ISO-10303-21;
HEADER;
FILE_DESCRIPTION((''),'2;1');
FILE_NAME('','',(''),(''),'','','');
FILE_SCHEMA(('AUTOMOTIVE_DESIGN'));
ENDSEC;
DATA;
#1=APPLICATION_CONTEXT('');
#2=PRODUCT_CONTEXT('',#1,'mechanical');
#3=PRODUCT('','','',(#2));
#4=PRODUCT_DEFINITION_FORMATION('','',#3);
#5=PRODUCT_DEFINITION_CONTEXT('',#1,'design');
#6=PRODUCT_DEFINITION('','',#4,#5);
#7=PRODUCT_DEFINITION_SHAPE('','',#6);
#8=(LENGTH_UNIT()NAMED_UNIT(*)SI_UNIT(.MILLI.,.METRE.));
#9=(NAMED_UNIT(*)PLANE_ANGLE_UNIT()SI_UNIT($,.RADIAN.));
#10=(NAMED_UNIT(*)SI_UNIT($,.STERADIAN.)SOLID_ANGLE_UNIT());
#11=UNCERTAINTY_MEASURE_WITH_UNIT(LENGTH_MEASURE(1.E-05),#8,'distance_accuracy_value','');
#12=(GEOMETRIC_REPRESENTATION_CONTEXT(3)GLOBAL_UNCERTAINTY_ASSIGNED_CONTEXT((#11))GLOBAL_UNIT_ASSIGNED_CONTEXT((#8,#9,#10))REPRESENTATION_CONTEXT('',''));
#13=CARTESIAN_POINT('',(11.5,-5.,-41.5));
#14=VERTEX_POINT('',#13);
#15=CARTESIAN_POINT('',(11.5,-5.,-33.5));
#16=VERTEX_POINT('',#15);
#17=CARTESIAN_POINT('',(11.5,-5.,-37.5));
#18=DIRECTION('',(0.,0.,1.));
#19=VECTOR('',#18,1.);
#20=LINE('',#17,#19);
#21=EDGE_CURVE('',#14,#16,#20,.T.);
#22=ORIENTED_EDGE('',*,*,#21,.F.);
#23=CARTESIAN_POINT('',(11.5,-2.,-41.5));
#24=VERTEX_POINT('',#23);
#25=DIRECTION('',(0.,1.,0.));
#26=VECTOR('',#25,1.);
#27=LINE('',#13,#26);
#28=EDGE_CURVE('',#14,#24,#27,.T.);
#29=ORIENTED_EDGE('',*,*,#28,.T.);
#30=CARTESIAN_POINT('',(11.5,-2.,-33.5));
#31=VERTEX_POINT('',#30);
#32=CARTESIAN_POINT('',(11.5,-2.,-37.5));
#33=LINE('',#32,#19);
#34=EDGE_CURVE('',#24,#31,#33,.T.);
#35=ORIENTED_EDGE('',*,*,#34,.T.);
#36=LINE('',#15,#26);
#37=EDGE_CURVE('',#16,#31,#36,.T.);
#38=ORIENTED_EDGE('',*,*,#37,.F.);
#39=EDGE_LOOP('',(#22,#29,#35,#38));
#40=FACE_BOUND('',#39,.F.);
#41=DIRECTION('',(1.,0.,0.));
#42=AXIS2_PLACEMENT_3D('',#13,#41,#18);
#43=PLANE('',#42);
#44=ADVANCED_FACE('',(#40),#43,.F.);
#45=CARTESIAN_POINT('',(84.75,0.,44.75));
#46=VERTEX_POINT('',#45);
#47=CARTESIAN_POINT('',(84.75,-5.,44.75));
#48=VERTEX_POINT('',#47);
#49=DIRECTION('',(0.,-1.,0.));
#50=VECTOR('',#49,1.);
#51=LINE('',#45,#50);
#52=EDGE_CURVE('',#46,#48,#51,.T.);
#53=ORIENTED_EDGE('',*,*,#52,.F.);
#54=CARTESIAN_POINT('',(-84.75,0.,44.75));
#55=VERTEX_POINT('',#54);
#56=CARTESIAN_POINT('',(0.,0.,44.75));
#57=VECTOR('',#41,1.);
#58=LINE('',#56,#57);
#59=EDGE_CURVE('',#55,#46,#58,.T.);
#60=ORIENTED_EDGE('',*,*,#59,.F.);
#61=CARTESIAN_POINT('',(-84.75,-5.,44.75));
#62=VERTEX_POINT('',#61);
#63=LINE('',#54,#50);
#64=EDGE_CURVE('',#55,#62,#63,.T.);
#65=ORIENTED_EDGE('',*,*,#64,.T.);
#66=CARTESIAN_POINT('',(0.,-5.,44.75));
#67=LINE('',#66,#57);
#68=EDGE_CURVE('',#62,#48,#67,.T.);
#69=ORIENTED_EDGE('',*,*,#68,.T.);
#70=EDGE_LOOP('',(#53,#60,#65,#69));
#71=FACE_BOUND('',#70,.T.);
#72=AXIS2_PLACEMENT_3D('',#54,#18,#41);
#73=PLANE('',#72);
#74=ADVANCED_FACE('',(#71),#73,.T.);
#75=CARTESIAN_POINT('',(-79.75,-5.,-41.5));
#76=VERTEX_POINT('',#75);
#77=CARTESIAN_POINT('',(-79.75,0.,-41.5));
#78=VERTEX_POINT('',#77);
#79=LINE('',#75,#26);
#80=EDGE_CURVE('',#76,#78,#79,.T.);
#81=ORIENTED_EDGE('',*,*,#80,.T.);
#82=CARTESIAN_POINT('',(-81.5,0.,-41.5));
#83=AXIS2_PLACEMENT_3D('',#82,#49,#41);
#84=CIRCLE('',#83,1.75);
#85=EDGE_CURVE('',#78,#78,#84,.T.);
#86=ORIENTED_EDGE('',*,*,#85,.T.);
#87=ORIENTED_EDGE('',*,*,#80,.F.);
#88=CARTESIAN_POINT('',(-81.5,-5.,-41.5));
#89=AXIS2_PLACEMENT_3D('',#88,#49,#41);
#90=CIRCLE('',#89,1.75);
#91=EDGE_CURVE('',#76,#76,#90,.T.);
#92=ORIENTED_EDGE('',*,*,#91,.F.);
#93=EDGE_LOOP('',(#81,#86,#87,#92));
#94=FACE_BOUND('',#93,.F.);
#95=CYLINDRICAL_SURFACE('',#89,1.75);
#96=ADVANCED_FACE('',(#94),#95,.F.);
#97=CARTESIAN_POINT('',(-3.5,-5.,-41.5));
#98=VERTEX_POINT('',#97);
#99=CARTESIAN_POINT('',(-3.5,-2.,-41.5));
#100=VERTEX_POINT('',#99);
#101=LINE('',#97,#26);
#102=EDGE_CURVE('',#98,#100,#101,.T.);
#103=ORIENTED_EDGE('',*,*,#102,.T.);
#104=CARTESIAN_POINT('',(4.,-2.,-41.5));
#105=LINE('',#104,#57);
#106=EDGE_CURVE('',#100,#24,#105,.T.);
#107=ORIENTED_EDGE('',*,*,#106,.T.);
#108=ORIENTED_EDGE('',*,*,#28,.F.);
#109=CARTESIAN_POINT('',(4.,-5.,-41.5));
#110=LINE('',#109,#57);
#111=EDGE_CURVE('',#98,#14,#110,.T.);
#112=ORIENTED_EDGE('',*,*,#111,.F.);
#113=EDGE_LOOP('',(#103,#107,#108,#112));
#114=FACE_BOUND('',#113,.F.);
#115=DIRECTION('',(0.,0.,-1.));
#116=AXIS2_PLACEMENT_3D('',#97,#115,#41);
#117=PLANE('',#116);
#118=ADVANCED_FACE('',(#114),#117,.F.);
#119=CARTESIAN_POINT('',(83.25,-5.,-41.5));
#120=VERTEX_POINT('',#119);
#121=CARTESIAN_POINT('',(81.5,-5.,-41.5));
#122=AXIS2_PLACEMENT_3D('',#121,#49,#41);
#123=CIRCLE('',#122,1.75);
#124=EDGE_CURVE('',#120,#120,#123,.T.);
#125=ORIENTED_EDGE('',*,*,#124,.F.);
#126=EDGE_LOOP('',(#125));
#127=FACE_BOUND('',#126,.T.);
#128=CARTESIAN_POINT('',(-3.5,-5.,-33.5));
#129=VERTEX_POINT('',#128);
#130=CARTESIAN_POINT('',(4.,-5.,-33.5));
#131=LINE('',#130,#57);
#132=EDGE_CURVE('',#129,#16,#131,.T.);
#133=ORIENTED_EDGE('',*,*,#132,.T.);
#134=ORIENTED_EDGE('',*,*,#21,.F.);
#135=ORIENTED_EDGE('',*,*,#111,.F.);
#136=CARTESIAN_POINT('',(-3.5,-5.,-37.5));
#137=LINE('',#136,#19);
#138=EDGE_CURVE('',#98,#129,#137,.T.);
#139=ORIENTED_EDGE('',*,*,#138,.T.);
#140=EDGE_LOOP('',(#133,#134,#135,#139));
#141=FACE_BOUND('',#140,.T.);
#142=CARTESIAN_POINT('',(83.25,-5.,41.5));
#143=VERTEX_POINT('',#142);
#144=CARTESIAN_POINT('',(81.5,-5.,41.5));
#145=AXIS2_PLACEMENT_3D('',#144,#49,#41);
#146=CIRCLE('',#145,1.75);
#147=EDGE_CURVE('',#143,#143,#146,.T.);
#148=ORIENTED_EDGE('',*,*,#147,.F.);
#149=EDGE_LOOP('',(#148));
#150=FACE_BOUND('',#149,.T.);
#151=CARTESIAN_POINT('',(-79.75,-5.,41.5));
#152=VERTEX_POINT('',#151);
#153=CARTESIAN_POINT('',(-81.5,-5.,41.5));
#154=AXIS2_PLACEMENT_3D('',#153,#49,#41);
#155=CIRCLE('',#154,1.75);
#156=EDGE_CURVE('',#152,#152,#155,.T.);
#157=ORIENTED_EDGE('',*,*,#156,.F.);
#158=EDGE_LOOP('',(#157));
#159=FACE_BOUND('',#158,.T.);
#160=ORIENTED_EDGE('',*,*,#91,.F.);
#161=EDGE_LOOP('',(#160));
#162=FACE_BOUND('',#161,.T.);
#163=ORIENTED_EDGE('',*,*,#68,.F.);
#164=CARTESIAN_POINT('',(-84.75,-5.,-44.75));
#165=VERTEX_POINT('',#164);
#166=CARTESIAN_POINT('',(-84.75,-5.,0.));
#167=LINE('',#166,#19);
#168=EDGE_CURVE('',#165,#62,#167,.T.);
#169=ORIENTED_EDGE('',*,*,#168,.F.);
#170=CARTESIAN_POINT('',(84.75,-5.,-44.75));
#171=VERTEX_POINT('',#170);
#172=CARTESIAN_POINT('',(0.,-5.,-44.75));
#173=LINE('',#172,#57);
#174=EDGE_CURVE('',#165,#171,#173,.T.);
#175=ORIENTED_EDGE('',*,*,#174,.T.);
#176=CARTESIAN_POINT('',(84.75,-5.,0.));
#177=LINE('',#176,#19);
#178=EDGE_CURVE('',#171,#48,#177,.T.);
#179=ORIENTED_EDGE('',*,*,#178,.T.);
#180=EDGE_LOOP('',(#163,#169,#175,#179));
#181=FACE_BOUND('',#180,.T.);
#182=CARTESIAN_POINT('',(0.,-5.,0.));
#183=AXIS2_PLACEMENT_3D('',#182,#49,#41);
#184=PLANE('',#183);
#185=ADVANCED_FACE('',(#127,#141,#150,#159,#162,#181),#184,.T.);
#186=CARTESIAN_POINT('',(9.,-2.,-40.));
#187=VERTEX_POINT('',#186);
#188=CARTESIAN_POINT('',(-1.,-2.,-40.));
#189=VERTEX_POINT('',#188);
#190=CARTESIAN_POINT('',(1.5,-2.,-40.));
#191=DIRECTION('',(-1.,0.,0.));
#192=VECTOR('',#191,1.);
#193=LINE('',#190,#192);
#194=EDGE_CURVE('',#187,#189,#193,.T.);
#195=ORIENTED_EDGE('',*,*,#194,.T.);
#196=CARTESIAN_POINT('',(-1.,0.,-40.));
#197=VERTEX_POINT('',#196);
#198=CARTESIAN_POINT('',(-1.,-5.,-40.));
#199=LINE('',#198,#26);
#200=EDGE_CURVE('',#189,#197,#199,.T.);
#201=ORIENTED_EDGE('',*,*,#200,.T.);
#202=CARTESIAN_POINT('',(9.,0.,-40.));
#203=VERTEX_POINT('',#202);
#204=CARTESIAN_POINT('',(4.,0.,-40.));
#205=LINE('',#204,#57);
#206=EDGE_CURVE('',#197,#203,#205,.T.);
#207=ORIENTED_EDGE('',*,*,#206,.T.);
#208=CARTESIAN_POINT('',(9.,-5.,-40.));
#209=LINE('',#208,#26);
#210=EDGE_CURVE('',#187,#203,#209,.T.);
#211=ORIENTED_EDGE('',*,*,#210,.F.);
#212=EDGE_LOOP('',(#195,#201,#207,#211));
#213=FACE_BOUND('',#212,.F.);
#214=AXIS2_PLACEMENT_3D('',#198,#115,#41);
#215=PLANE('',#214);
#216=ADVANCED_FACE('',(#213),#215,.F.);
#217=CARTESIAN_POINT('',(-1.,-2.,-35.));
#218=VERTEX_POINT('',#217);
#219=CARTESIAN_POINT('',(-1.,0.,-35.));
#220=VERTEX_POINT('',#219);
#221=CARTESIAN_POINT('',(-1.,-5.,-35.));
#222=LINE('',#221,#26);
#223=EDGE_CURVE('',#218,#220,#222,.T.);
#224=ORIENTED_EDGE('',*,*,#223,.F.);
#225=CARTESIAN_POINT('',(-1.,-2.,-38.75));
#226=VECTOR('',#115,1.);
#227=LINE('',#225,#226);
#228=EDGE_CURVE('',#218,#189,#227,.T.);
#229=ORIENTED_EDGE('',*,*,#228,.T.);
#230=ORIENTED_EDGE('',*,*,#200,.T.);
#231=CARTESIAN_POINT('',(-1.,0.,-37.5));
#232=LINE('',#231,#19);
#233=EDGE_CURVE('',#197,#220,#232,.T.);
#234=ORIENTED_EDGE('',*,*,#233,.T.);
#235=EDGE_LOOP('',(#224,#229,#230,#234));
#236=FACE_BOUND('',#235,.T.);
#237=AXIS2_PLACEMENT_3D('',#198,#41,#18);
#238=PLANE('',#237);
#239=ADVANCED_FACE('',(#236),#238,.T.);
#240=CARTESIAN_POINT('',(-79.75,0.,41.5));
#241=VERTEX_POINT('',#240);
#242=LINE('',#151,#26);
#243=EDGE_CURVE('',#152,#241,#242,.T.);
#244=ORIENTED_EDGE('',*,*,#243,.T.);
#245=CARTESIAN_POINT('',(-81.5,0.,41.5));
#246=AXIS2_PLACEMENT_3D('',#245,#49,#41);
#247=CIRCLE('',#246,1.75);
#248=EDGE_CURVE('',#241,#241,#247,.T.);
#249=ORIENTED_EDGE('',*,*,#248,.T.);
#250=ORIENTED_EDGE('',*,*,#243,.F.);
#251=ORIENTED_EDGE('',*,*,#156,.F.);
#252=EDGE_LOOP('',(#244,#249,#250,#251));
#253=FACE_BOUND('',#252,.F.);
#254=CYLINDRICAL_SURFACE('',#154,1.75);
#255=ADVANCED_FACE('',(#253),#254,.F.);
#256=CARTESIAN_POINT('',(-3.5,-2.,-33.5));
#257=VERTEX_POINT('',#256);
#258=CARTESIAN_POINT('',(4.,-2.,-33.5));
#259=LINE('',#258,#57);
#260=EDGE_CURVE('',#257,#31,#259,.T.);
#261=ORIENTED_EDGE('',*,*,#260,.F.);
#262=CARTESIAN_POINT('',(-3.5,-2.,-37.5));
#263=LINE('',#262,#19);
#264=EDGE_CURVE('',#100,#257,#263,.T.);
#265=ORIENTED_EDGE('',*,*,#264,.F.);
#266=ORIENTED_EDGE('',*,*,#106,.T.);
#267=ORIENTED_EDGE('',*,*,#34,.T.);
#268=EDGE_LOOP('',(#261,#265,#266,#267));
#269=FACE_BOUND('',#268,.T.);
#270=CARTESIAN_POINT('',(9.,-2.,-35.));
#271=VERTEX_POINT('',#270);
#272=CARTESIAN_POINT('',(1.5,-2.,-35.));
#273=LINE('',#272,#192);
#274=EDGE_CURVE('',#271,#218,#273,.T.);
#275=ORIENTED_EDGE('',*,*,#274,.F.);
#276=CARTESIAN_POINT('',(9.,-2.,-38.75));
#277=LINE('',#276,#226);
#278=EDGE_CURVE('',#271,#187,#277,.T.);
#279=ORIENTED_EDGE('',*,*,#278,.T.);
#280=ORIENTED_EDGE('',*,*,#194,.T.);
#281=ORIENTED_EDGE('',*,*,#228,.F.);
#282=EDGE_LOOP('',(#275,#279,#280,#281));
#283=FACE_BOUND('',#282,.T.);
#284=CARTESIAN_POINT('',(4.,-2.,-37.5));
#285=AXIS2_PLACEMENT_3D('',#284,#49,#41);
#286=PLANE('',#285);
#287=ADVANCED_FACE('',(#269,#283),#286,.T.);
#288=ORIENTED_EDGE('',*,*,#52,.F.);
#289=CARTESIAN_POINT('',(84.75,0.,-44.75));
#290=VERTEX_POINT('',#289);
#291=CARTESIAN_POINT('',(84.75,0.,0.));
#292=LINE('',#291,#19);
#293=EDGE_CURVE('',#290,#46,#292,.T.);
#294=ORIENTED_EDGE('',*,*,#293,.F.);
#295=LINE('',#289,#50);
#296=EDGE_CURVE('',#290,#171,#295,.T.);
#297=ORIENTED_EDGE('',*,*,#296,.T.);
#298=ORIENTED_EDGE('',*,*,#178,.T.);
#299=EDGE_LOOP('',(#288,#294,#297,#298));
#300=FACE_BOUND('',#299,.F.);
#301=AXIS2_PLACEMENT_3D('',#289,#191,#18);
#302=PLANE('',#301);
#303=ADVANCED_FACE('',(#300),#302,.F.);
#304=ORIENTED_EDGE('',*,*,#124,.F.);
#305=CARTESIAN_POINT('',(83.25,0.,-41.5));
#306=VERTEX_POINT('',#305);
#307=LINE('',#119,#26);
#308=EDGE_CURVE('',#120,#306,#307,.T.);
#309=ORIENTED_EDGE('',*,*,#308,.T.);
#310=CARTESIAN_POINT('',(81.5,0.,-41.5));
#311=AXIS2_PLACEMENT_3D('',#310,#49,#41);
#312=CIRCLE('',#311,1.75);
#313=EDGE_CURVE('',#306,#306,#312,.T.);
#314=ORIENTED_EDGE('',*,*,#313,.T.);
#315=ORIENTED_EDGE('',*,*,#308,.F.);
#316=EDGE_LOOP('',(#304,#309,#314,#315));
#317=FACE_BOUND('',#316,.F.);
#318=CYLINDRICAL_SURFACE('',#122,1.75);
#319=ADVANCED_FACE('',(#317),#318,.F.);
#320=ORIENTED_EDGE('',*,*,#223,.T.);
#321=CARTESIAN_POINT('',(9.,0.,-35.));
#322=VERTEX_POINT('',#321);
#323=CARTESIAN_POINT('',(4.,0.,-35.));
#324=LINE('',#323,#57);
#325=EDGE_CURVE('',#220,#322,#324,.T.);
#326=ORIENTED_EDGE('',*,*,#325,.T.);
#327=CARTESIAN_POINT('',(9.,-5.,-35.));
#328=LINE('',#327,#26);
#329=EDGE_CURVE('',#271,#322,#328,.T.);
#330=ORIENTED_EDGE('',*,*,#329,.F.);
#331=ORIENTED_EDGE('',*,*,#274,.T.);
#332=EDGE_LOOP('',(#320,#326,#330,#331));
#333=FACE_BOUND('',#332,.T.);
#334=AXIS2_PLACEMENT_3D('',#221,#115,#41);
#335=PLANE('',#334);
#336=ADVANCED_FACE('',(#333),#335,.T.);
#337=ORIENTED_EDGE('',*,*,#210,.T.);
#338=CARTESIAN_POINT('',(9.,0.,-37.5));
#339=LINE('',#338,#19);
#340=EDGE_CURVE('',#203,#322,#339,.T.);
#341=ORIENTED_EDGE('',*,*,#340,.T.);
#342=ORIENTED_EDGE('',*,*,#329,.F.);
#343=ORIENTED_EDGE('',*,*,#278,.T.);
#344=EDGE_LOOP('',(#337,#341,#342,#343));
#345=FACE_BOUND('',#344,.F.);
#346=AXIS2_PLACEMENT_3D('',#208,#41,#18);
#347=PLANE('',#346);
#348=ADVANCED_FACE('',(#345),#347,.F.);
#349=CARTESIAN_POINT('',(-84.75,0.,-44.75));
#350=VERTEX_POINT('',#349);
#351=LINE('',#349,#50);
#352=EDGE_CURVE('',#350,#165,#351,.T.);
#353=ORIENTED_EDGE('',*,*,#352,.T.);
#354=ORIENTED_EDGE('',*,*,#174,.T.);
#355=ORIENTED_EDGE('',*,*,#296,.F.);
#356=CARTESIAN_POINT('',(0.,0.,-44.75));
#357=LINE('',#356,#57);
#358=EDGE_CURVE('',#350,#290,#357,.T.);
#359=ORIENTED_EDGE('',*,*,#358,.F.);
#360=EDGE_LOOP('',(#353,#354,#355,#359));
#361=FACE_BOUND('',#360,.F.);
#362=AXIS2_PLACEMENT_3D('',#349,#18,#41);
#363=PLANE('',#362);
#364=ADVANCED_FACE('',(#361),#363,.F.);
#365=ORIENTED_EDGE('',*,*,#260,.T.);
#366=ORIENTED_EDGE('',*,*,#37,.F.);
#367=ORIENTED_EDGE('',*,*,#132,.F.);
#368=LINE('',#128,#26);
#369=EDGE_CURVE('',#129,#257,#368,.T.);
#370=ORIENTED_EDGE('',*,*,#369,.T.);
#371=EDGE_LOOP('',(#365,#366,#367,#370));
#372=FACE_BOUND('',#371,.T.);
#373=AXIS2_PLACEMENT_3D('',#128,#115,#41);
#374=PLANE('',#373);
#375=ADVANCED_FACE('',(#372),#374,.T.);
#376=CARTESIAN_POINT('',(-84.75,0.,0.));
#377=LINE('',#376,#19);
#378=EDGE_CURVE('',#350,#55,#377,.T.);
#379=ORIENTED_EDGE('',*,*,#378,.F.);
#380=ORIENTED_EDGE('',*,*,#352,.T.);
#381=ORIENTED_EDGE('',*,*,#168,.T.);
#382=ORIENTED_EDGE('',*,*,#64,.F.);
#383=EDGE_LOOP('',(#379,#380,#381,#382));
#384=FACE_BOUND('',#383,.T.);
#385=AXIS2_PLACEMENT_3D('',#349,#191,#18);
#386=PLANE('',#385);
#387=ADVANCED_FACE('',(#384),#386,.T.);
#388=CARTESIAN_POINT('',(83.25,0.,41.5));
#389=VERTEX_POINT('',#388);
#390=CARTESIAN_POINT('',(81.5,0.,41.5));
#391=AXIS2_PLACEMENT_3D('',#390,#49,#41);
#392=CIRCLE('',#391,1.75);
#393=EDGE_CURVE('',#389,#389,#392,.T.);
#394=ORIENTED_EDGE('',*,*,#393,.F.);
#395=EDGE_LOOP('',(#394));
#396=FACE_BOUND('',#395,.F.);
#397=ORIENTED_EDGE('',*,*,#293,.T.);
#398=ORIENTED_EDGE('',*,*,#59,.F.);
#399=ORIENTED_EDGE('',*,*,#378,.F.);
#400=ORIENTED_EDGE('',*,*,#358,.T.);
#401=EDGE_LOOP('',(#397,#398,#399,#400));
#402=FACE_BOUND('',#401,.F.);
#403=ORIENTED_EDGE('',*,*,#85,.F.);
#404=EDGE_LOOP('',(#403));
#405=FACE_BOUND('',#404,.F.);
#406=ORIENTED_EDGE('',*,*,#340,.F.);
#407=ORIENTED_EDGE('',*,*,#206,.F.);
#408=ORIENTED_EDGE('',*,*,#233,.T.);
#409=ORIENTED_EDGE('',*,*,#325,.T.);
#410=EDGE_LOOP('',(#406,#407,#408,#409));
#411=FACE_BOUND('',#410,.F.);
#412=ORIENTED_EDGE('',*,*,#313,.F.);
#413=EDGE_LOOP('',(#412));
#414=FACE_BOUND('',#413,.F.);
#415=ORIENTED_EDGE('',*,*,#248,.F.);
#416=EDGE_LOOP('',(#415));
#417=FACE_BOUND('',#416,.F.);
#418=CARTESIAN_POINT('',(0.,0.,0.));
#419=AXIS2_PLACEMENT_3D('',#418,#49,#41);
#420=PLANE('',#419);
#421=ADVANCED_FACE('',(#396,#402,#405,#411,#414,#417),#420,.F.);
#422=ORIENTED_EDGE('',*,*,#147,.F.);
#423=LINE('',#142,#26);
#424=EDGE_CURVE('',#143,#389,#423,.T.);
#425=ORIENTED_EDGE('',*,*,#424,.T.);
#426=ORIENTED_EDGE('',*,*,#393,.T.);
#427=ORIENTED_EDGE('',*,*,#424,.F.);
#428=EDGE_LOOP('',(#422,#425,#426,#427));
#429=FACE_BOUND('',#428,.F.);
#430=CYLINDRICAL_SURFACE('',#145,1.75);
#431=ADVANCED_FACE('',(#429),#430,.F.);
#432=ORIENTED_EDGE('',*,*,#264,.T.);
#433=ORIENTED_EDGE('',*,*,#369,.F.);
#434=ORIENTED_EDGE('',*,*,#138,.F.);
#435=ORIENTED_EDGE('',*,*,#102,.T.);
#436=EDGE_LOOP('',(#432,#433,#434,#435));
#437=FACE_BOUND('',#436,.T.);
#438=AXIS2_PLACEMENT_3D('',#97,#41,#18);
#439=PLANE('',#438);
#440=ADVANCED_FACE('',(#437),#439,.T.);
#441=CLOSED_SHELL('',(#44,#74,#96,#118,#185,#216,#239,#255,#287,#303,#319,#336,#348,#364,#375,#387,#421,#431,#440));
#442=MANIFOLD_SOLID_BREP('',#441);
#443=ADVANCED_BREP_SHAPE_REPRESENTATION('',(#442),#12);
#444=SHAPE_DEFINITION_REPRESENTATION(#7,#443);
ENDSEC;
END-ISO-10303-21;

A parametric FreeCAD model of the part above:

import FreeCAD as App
import Part
import Sketcher

doc = App.newDocument("Part")
body = doc.addObject("PartDesign::Body", "Body")

sketch1 = body.newObject("Sketcher::SketchObject", "Sketch")
sketch1.AttachmentSupport = (doc.getObject("XZ_Plane"), [""])
sketch1.MapMode = "FlatFace"
sketch1.addGeometry([
    Part.LineSegment(App.Vector(-84.75, 44.75, 0), App.Vector(-84.75, -44.75, 0)),
    Part.LineSegment(App.Vector(-84.75, -44.75, 0), App.Vector(84.75, -44.75, 0)),
    Part.LineSegment(App.Vector(84.75, -44.75, 0), App.Vector(84.75, 44.75, 0)),
    Part.LineSegment(App.Vector(84.75, 44.75, 0), App.Vector(-84.75, 44.75, 0)),
], False)
sketch1.addConstraint([
    Sketcher.Constraint("Coincident", 0, 2, 1, 1),
    Sketcher.Constraint("Coincident", 1, 2, 2, 1),
    Sketcher.Constraint("Coincident", 2, 2, 3, 1),
    Sketcher.Constraint("Coincident", 3, 2, 0, 1),
    Sketcher.Constraint("Vertical", 0),
    Sketcher.Constraint("Horizontal", 1),
    Sketcher.Constraint("Vertical", 2),
    Sketcher.Constraint("Horizontal", 3),
    Sketcher.Constraint("Symmetric", 0, 2, 2, 2, -1, 1),
    Sketcher.Constraint("DistanceX", 1, 1, 1, 2, 169.5),
    Sketcher.Constraint("DistanceY", 0, 2, 0, 1, 89.5),
])
pad1 = body.newObject("PartDesign::Pad", "Pad")
pad1.Profile = sketch1
pad1.Length = 5

sketch2 = body.newObject("Sketcher::SketchObject", "Sketch001")
sketch2.AttachmentSupport = (doc.getObject("XZ_Plane"), [""])
sketch2.MapMode = "FlatFace"
sketch2.AttachmentOffset = App.Placement(App.Vector(0, 0, 5), App.Rotation())
sketch2.addGeometry([
    Part.Circle(App.Vector(-81.5, 41.5, 0), App.Vector(0, 0, 1), 1.75),
    Part.Circle(App.Vector(81.5, 41.5, 0), App.Vector(0, 0, 1), 1.75),
    Part.Circle(App.Vector(-81.5, -41.5, 0), App.Vector(0, 0, 1), 1.75),
    Part.Circle(App.Vector(81.5, -41.5, 0), App.Vector(0, 0, 1), 1.75),
    Part.LineSegment(App.Vector(-1, -35, 0), App.Vector(-1, -40, 0)),
    Part.LineSegment(App.Vector(-1, -40, 0), App.Vector(9, -40, 0)),
    Part.LineSegment(App.Vector(9, -40, 0), App.Vector(9, -35, 0)),
    Part.LineSegment(App.Vector(9, -35, 0), App.Vector(-1, -35, 0)),
], False)
sketch2.addConstraint([
    Sketcher.Constraint("Coincident", 4, 2, 5, 1),
    Sketcher.Constraint("Coincident", 5, 2, 6, 1),
    Sketcher.Constraint("Coincident", 6, 2, 7, 1),
    Sketcher.Constraint("Coincident", 7, 2, 4, 1),
    Sketcher.Constraint("Vertical", 4),
    Sketcher.Constraint("Horizontal", 5),
    Sketcher.Constraint("Vertical", 6),
    Sketcher.Constraint("Horizontal", 7),
    Sketcher.Constraint("Equal", 0, 1),
    Sketcher.Constraint("Equal", 1, 2),
    Sketcher.Constraint("Equal", 2, 3),
    Sketcher.Constraint("Symmetric", 1, 3, 2, 3, -1, 1),
    Sketcher.Constraint("Symmetric", 0, 3, 3, 3, -1, 1),
    Sketcher.Constraint("Symmetric", 0, 3, 1, 3, -2),
    Sketcher.Constraint("Diameter", 0, 3.5),
    Sketcher.Constraint("DistanceX", 5, 1, 5, 2, 10.0),
    Sketcher.Constraint("DistanceY", 4, 2, 4, 1, 5.0),
    Sketcher.Constraint("DistanceX", 4, 2, -1, 1, 1.0),
    Sketcher.Constraint("DistanceY", 4, 2, -1, 1, 40.0),
    Sketcher.Constraint("DistanceX", 0, 3, 1, 3, 163.0),
    Sketcher.Constraint("DistanceY", 2, 3, 0, 3, 83.0),
])
pocket1 = body.newObject("PartDesign::Pocket", "Pocket")
pocket1.Profile = sketch2
pocket1.Length = 5

sketch3 = body.newObject("Sketcher::SketchObject", "Sketch002")
sketch3.AttachmentSupport = (doc.getObject("XZ_Plane"), [""])
sketch3.MapMode = "FlatFace"
sketch3.AttachmentOffset = App.Placement(App.Vector(0, 0, 5), App.Rotation())
sketch3.addGeometry([
    Part.LineSegment(App.Vector(-3.5, -33.5, 0), App.Vector(-3.5, -41.5, 0)),
    Part.LineSegment(App.Vector(-3.5, -41.5, 0), App.Vector(11.5, -41.5, 0)),
    Part.LineSegment(App.Vector(11.5, -41.5, 0), App.Vector(11.5, -33.5, 0)),
    Part.LineSegment(App.Vector(11.5, -33.5, 0), App.Vector(-3.5, -33.5, 0)),
], False)
sketch3.addConstraint([
    Sketcher.Constraint("Coincident", 0, 2, 1, 1),
    Sketcher.Constraint("Coincident", 1, 2, 2, 1),
    Sketcher.Constraint("Coincident", 2, 2, 3, 1),
    Sketcher.Constraint("Coincident", 3, 2, 0, 1),
    Sketcher.Constraint("Vertical", 0),
    Sketcher.Constraint("Horizontal", 1),
    Sketcher.Constraint("Vertical", 2),
    Sketcher.Constraint("Horizontal", 3),
    Sketcher.Constraint("DistanceX", 1, 1, 1, 2, 15.0),
    Sketcher.Constraint("DistanceY", 0, 2, 0, 1, 8.0),
    Sketcher.Constraint("DistanceX", 0, 2, -1, 1, 3.5),
    Sketcher.Constraint("DistanceY", 0, 2, -1, 1, 41.5),
])
pocket2 = body.newObject("PartDesign::Pocket", "Pocket001")
pocket2.Profile = sketch3
pocket2.Length = 3

doc.recompute()
